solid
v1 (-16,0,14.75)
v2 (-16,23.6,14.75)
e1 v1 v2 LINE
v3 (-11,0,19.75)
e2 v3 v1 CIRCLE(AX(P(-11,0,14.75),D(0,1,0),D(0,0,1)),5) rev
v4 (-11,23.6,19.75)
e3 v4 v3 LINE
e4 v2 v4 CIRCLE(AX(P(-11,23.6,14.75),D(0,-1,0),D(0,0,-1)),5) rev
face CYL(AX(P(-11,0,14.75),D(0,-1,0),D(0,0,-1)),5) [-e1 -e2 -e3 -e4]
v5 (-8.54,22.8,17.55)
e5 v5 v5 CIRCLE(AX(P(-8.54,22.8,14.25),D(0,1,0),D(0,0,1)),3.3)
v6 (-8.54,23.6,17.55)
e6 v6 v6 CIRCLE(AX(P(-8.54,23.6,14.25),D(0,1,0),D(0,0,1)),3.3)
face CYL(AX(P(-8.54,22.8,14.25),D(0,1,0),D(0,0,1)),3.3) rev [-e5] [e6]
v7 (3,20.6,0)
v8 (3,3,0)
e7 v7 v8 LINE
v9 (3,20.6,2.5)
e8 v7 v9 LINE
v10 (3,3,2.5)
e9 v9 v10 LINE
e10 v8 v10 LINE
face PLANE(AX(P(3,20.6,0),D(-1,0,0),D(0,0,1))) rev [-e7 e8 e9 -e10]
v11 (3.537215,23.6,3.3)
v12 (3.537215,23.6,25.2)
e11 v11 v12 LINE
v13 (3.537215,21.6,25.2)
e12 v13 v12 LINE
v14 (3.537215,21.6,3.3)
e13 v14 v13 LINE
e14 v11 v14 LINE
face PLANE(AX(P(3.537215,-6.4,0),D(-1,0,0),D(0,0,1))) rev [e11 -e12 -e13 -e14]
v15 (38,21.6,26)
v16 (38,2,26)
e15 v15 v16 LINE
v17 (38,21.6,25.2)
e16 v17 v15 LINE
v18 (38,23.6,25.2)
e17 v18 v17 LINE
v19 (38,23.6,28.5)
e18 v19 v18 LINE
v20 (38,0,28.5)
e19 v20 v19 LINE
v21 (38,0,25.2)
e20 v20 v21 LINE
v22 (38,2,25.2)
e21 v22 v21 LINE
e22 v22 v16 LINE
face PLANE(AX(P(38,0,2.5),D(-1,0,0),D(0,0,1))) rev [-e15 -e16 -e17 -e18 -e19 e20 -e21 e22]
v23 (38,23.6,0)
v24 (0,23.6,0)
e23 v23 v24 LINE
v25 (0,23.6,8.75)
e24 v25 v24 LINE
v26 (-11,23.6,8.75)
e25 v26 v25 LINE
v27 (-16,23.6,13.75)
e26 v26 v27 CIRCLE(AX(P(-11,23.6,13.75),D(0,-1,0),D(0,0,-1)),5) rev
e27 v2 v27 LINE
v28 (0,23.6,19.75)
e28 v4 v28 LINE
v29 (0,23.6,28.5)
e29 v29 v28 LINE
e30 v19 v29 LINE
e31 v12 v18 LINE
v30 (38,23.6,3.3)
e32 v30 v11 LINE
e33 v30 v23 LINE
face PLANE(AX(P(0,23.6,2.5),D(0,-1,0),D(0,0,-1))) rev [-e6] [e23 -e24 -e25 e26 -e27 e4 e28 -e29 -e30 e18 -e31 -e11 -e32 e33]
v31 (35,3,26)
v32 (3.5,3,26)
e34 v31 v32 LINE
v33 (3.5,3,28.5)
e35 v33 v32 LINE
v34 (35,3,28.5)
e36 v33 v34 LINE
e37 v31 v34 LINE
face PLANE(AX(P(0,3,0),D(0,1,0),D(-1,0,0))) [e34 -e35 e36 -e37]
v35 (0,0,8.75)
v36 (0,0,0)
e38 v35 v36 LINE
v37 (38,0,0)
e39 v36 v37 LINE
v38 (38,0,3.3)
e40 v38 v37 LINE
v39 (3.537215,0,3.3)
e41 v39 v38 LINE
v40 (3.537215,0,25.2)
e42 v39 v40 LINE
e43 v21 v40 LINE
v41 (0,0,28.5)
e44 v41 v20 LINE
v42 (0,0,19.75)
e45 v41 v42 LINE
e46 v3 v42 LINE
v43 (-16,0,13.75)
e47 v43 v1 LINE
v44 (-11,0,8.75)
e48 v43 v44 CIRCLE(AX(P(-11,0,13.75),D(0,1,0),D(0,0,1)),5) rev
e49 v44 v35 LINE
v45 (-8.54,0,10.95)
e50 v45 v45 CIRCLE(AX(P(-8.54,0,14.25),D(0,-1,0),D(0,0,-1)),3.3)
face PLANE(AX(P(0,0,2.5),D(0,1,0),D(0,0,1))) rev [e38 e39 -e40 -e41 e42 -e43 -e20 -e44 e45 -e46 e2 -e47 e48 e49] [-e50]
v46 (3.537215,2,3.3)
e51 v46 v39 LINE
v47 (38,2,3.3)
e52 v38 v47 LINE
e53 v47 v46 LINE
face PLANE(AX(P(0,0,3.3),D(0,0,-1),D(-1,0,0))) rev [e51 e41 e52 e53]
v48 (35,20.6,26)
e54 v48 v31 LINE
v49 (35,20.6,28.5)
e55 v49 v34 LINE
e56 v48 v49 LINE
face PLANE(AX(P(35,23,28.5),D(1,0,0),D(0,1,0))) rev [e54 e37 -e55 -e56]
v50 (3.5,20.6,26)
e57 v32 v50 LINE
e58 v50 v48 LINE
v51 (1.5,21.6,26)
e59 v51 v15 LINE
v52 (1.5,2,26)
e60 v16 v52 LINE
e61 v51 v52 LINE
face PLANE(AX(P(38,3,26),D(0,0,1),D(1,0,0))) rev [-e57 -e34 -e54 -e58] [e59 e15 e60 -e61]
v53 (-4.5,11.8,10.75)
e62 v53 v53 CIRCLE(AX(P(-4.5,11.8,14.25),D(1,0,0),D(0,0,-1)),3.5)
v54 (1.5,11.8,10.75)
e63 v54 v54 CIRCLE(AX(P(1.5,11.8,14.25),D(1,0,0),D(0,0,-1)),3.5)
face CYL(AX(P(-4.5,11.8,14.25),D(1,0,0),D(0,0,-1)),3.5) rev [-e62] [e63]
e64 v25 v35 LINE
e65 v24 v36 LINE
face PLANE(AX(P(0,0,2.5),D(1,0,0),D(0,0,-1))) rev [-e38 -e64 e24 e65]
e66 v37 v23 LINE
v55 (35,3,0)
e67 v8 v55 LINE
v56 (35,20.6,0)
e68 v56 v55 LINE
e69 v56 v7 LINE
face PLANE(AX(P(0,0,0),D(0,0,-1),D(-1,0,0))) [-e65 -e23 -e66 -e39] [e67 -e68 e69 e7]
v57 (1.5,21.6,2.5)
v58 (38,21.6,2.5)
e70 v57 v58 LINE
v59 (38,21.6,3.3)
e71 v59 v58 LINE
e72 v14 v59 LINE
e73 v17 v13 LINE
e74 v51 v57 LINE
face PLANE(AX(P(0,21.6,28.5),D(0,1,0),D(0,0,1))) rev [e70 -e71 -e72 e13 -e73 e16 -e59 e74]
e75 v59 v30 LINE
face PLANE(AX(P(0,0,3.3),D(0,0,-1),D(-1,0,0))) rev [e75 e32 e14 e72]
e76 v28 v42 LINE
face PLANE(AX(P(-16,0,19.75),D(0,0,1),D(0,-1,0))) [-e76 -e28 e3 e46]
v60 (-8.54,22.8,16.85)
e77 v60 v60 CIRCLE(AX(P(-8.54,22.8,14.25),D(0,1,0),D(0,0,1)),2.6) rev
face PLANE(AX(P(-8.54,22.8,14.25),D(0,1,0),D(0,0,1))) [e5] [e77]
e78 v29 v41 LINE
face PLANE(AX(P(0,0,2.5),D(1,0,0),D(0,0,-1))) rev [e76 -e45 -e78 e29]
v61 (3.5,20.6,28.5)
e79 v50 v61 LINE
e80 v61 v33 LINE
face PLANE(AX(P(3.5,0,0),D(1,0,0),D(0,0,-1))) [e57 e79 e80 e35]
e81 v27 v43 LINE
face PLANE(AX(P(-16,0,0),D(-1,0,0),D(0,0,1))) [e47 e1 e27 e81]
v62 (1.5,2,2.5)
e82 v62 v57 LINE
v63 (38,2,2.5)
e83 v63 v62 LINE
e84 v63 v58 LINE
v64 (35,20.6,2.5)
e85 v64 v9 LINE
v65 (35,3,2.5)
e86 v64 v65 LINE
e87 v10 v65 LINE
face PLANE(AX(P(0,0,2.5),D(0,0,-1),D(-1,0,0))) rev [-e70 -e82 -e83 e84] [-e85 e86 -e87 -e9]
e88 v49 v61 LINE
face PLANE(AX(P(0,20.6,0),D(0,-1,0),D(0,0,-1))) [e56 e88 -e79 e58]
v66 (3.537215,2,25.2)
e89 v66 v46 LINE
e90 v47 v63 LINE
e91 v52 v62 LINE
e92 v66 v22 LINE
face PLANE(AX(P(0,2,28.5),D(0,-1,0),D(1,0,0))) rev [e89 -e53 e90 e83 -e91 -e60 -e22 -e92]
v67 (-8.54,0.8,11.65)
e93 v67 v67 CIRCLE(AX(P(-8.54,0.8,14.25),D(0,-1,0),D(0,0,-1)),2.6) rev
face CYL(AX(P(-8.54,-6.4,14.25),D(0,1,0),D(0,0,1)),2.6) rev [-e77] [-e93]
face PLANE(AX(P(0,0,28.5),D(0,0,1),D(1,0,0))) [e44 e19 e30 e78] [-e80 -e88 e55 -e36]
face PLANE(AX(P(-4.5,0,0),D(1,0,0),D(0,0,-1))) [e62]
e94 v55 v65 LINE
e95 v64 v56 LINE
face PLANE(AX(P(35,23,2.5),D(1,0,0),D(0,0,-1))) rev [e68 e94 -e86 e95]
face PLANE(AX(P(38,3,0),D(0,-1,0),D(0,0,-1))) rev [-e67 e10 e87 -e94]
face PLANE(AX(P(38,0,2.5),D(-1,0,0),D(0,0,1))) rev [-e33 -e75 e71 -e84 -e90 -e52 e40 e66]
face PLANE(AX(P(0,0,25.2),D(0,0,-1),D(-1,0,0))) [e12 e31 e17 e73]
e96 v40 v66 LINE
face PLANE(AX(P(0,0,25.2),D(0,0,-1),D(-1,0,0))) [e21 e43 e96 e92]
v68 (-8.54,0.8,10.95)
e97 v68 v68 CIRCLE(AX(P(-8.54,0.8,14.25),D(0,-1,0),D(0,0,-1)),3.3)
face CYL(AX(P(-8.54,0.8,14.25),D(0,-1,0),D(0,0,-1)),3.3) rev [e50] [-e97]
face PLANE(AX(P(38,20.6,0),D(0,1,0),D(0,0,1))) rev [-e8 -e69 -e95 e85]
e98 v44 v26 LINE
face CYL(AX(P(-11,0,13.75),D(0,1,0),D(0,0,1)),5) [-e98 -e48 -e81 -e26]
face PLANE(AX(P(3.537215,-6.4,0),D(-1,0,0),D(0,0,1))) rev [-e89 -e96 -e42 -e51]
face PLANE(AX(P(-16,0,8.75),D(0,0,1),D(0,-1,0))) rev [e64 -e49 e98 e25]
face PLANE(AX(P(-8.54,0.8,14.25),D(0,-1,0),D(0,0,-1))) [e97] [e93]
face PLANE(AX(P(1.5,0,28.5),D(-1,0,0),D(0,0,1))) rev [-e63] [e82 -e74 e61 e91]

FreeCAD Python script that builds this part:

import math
import FreeCAD as App
import Part
import Sketcher

V = App.Vector


def edges_at(feature, points):
    """Names of the edges that pass closest to the given points."""
    edges = feature.Shape.Edges
    near = lambda p: min(range(len(edges)), key=lambda i: edges[i].distToShape(Part.Vertex(*p))[0])
    return sorted({f"Edge{near(p) + 1}" for p in points})

doc = App.newDocument("Part")
body = doc.addObject("PartDesign::Body", "Body")

# Sketch on XY plane
sketch1 = body.newObject("Sketcher::SketchObject", "Sketch")
sketch1.AttachmentSupport = (doc.getObject("XY_Plane"), [""])
sketch1.MapMode = "FlatFace"
sketch1.addGeometry([
    Part.LineSegment(V(0, 24, 0), V(0, 0, 0)),
    Part.LineSegment(V(0, 0, 0), V(38, 0, 0)),
    Part.LineSegment(V(38, 0, 0), V(38, 24, 0)),
    Part.LineSegment(V(38, 24, 0), V(0, 24, 0)),
], False)
sketch1.addConstraint([
    Sketcher.Constraint("Coincident", 0, 2, 1, 1),
    Sketcher.Constraint("Coincident", 1, 2, 2, 1),
    Sketcher.Constraint("Coincident", 2, 2, 3, 1),
    Sketcher.Constraint("Coincident", 3, 2, 0, 1),
    Sketcher.Constraint("Vertical", 0),
    Sketcher.Constraint("Horizontal", 1),
    Sketcher.Constraint("Vertical", 2),
    Sketcher.Constraint("Horizontal", 3),
    Sketcher.Constraint("Coincident", 0, 2, -1, 1),
    Sketcher.Constraint("DistanceX", 1, 1, 1, 2, 38.0),
    Sketcher.Constraint("DistanceY", 0, 2, 0, 1, 23.6),
])
pad1 = body.newObject("PartDesign::Pad", "Pad")
pad1.Profile = sketch1
pad1.Length = 2.5

# Sketch on XY plane
sketch2 = body.newObject("Sketcher::SketchObject", "Sketch001")
sketch2.AttachmentSupport = (doc.getObject("XY_Plane"), [""])
sketch2.MapMode = "FlatFace"
sketch2.AttachmentOffset = App.Placement(V(0, 0, 2.5), App.Rotation())
sketch2.addGeometry([
    Part.LineSegment(V(3, 21, 0), V(3, 3, 0)),
    Part.LineSegment(V(3, 3, 0), V(38, 3, 0)),
    Part.LineSegment(V(38, 3, 0), V(38, 21, 0)),
    Part.LineSegment(V(38, 21, 0), V(3, 21, 0)),
], False)
sketch2.addConstraint([
    Sketcher.Constraint("Coincident", 0, 2, 1, 1),
    Sketcher.Constraint("Coincident", 1, 2, 2, 1),
    Sketcher.Constraint("Coincident", 2, 2, 3, 1),
    Sketcher.Constraint("Coincident", 3, 2, 0, 1),
    Sketcher.Constraint("Vertical", 0),
    Sketcher.Constraint("Horizontal", 1),
    Sketcher.Constraint("Vertical", 2),
    Sketcher.Constraint("Horizontal", 3),
    Sketcher.Constraint("DistanceX", 1, 1, 1, 2, 35.0),
    Sketcher.Constraint("DistanceY", 0, 2, 0, 1, 17.6),
    Sketcher.Constraint("DistanceX", -1, 1, 0, 2, 3.0),
    Sketcher.Constraint("DistanceY", -1, 1, 0, 2, 3.0),
])
pocket1 = body.newObject("PartDesign::Pocket", "Pocket")
pocket1.Profile = sketch2
pocket1.Length = 2.5

# Sketch on XY plane
sketch3 = body.newObject("Sketcher::SketchObject", "Sketch002")
sketch3.AttachmentSupport = (doc.getObject("XY_Plane"), [""])
sketch3.MapMode = "FlatFace"
sketch3.AttachmentOffset = App.Placement(V(0, 0, 2.5), App.Rotation())
sketch3.addGeometry([
    Part.LineSegment(V(38, 21.6, 0), V(38, 23.6, 0)),  # 0
    Part.LineSegment(V(38, 23.6, 0), V(0, 23.6, 0)),  # 1
    Part.LineSegment(V(0, 23.6, 0), V(0, 0, 0)),  # 2
    Part.LineSegment(V(0, 0, 0), V(38, 0, 0)),  # 3
    Part.LineSegment(V(38, 0, 0), V(38, 2, 0)),  # 4
    Part.LineSegment(V(38, 2, 0), V(1.5, 2, 0)),  # 5
    Part.LineSegment(V(1.5, 2, 0), V(1.5, 21.6, 0)),  # 6
    Part.LineSegment(V(1.5, 21.6, 0), V(38, 21.6, 0)),  # 7
], False)
sketch3.addConstraint([
    Sketcher.Constraint("Coincident", 0, 2, 1, 1),
    Sketcher.Constraint("Coincident", 1, 2, 2, 1),
    Sketcher.Constraint("Coincident", 2, 2, 3, 1),
    Sketcher.Constraint("Coincident", 3, 2, 4, 1),
    Sketcher.Constraint("Coincident", 4, 2, 5, 1),
    Sketcher.Constraint("Coincident", 5, 2, 6, 1),
    Sketcher.Constraint("Coincident", 6, 2, 7, 1),
    Sketcher.Constraint("Coincident", 7, 2, 0, 1),
    Sketcher.Constraint("Vertical", 0),
    Sketcher.Constraint("Horizontal", 1),
    Sketcher.Constraint("Vertical", 2),
    Sketcher.Constraint("Horizontal", 3),
    Sketcher.Constraint("Vertical", 4),
    Sketcher.Constraint("Horizontal", 5),
    Sketcher.Constraint("Vertical", 6),
    Sketcher.Constraint("Horizontal", 7),
    Sketcher.Constraint("Coincident", 2, 2, -1, 1),
    Sketcher.Constraint("Vertical", 0, 2, 3, 2),
    Sketcher.Constraint("Equal", 0, 4),
    Sketcher.Constraint("DistanceX", 1, 2, 1, 1, 38.0),
    Sketcher.Constraint("DistanceY", 0, 1, 0, 2, 2.0),
    Sketcher.Constraint("DistanceX", 5, 2, 5, 1, 36.5),
    Sketcher.Constraint("DistanceY", 2, 2, 2, 1, 23.6),
])
pad2 = body.newObject("PartDesign::Pad", "Pad001")
pad2.Profile = sketch3
pad2.Length = 26

# Sketch on XZ plane
sketch4 = body.newObject("Sketcher::SketchObject", "Sketch003")
sketch4.AttachmentSupport = (doc.getObject("XZ_Plane"), [""])
sketch4.MapMode = "FlatFace"
sketch4.AttachmentOffset = App.Placement(V(0, 0, -2), App.Rotation())
sketch4.addGeometry([
    Part.LineSegment(V(1.5, 26, 0), V(1.5, 28.5, 0)),
    Part.LineSegment(V(1.5, 28.5, 0), V(38, 28.5, 0)),
    Part.LineSegment(V(38, 28.5, 0), V(38, 26, 0)),
    Part.LineSegment(V(38, 26, 0), V(1.5, 26, 0)),
], False)
sketch4.addConstraint([
    Sketcher.Constraint("Coincident", 0, 2, 1, 1),
    Sketcher.Constraint("Coincident", 1, 2, 2, 1),
    Sketcher.Constraint("Coincident", 2, 2, 3, 1),
    Sketcher.Constraint("Coincident", 3, 2, 0, 1),
    Sketcher.Constraint("Vertical", 0),
    Sketcher.Constraint("Horizontal", 1),
    Sketcher.Constraint("Vertical", 2),
    Sketcher.Constraint("Horizontal", 3),
    Sketcher.Constraint("DistanceX", 1, 1, 1, 2, 36.5),
    Sketcher.Constraint("DistanceY", 0, 1, 0, 2, 2.5),
    Sketcher.Constraint("DistanceX", -1, 1, 1, 2, 38.0),
    Sketcher.Constraint("DistanceY", -1, 1, 2, 2, 26.0),
])
pad3 = body.newObject("PartDesign::Pad", "Pad002")
pad3.Profile = sketch4
pad3.Length = 1
pad3.Reversed = True

# Sketch on XZ plane
sketch5 = body.newObject("Sketcher::SketchObject", "Sketch004")
sketch5.AttachmentSupport = (doc.getObject("XZ_Plane"), [""])
sketch5.MapMode = "FlatFace"
sketch5.AttachmentOffset = App.Placement(V(0, 0, -21.6), App.Rotation())
sketch5.addGeometry([
    Part.LineSegment(V(38, 26, 0), V(38, 28.5, 0)),
    Part.LineSegment(V(38, 28.5, 0), V(1.5, 28.5, 0)),
    Part.LineSegment(V(1.5, 28.5, 0), V(1.5, 26, 0)),
    Part.LineSegment(V(1.5, 26, 0), V(38, 26, 0)),
], False)
sketch5.addConstraint([
    Sketcher.Constraint("Coincident", 0, 2, 1, 1),
    Sketcher.Constraint("Coincident", 1, 2, 2, 1),
    Sketcher.Constraint("Coincident", 2, 2, 3, 1),
    Sketcher.Constraint("Coincident", 3, 2, 0, 1),
    Sketcher.Constraint("Vertical", 0),
    Sketcher.Constraint("Horizontal", 1),
    Sketcher.Constraint("Vertical", 2),
    Sketcher.Constraint("Horizontal", 3),
    Sketcher.Constraint("DistanceX", 1, 2, 1, 1, 36.5),
    Sketcher.Constraint("DistanceY", 0, 1, 0, 2, 2.5),
    Sketcher.Constraint("DistanceX", -1, 1, 0, 2, 38.0),
    Sketcher.Constraint("DistanceY", -1, 1, 2, 2, 26.0),
])
pad4 = body.newObject("PartDesign::Pad", "Pad003")
pad4.Profile = sketch5
pad4.Length = 1

# Sketch on YZ plane
sketch6 = body.newObject("Sketcher::SketchObject", "Sketch005")
sketch6.AttachmentSupport = (doc.getObject("YZ_Plane"), [""])
sketch6.MapMode = "FlatFace"
sketch6.AttachmentOffset = App.Placement(V(0, 0, 1.5), App.Rotation())
sketch6.addGeometry([
    Part.LineSegment(V(20.6, 28.5, 0), V(3, 28.5, 0)),
    Part.LineSegment(V(3, 28.5, 0), V(3, 26, 0)),
    Part.LineSegment(V(3, 26, 0), V(20.6, 26, 0)),
    Part.LineSegment(V(20.6, 26, 0), V(20.6, 28.5, 0)),
], False)
sketch6.addConstraint([
    Sketcher.Constraint("Coincident", 0, 2, 1, 1),
    Sketcher.Constraint("Coincident", 1, 2, 2, 1),
    Sketcher.Constraint("Coincident", 2, 2, 3, 1),
    Sketcher.Constraint("Coincident", 3, 2, 0, 1),
    Sketcher.Constraint("Horizontal", 0),
    Sketcher.Constraint("Vertical", 1),
    Sketcher.Constraint("Horizontal", 2),
    Sketcher.Constraint("Vertical", 3),
    Sketcher.Constraint("DistanceX", 0, 2, 0, 1, 17.6),
    Sketcher.Constraint("DistanceY", 1, 2, 1, 1, 2.5),
    Sketcher.Constraint("DistanceX", -1, 1, 0, 2, 3.0),
    Sketcher.Constraint("DistanceY", -1, 1, 1, 2, 26.0),
])
pad5 = body.newObject("PartDesign::Pad", "Pad004")
pad5.Profile = sketch6
pad5.Length = 2

# Sketch on XZ plane
sketch7 = body.newObject("Sketcher::SketchObject", "Sketch006")
sketch7.AttachmentSupport = (doc.getObject("XZ_Plane"), [""])
sketch7.MapMode = "FlatFace"
sketch7.AttachmentOffset = App.Placement(V(0, 0, -23.6), App.Rotation())
sketch7.addGeometry([
    Part.LineSegment(V(4, 2, 0), V(4, 26, 0)),
    Part.LineSegment(V(4, 26, 0), V(38, 26, 0)),
    Part.LineSegment(V(38, 26, 0), V(38, 2, 0)),
    Part.LineSegment(V(38, 2, 0), V(4, 2, 0)),
], False)
sketch7.addConstraint([
    Sketcher.Constraint("Coincident", 0, 2, 1, 1),
    Sketcher.Constraint("Coincident", 1, 2, 2, 1),
    Sketcher.Constraint("Coincident", 2, 2, 3, 1),
    Sketcher.Constraint("Coincident", 3, 2, 0, 1),
    Sketcher.Constraint("Vertical", 0),
    Sketcher.Constraint("Horizontal", 1),
    Sketcher.Constraint("Vertical", 2),
    Sketcher.Constraint("Horizontal", 3),
    Sketcher.Constraint("DistanceY", 0, 1, 0, 2, 23.5),
    Sketcher.Constraint("DistanceY", -1, 1, 0, 2, 26.0),
    Sketcher.Constraint("DistanceX", -1, 1, 1, 2, 38.0),
    Sketcher.Constraint("DistanceX", 1, 1, 1, 2, 34.462785),
])
pocket2 = body.newObject("PartDesign::Pocket", "Pocket001")
pocket2.Profile = sketch7
pocket2.Length = 30
pocket2.Reversed = True

# Sketch on XZ plane
sketch8 = body.newObject("Sketcher::SketchObject", "Sketch007")
sketch8.AttachmentSupport = (doc.getObject("XZ_Plane"), [""])
sketch8.MapMode = "FlatFace"
sketch8.AttachmentOffset = App.Placement(V(0, 0, -3), App.Rotation())
sketch8.addGeometry([
    Part.LineSegment(V(35, 0, 0), V(35, 2.5, 0)),
    Part.LineSegment(V(35, 2.5, 0), V(38, 2.5, 0)),
    Part.LineSegment(V(38, 2.5, 0), V(38, 0, 0)),
    Part.LineSegment(V(38, 0, 0), V(35, 0, 0)),
], False)
sketch8.addConstraint([
    Sketcher.Constraint("Coincident", 0, 2, 1, 1),
    Sketcher.Constraint("Coincident", 1, 2, 2, 1),
    Sketcher.Constraint("Coincident", 2, 2, 3, 1),
    Sketcher.Constraint("Coincident", 3, 2, 0, 1),
    Sketcher.Constraint("Vertical", 0),
    Sketcher.Constraint("Horizontal", 1),
    Sketcher.Constraint("Vertical", 2),
    Sketcher.Constraint("Horizontal", 3),
    Sketcher.Constraint("PointOnObject", 2, 2, -1),
    Sketcher.Constraint("DistanceX", 1, 1, 1, 2, 3.0),
    Sketcher.Constraint("DistanceY", 0, 1, 0, 2, 2.5),
    Sketcher.Constraint("DistanceX", -1, 1, 0, 2, 35.0),
])
pad6 = body.newObject("PartDesign::Pad", "Pad005")
pad6.Profile = sketch8
pad6.Length = 20
pad6.Reversed = True

# Sketch on XZ plane
sketch9 = body.newObject("Sketcher::SketchObject", "Sketch008")
sketch9.AttachmentSupport = (doc.getObject("XZ_Plane"), [""])
sketch9.MapMode = "FlatFace"
sketch9.AttachmentOffset = App.Placement(V(0, 0, -3), App.Rotation())
sketch9.addGeometry([
    Part.LineSegment(V(35, 26, 0), V(35, 28.5, 0)),
    Part.LineSegment(V(35, 28.5, 0), V(38, 28.5, 0)),
    Part.LineSegment(V(38, 28.5, 0), V(38, 26, 0)),
    Part.LineSegment(V(38, 26, 0), V(35, 26, 0)),
], False)
sketch9.addConstraint([
    Sketcher.Constraint("Coincident", 0, 2, 1, 1),
    Sketcher.Constraint("Coincident", 1, 2, 2, 1),
    Sketcher.Constraint("Coincident", 2, 2, 3, 1),
    Sketcher.Constraint("Coincident", 3, 2, 0, 1),
    Sketcher.Constraint("Vertical", 0),
    Sketcher.Constraint("Horizontal", 1),
    Sketcher.Constraint("Vertical", 2),
    Sketcher.Constraint("Horizontal", 3),
    Sketcher.Constraint("DistanceX", 1, 1, 1, 2, 3.0),
    Sketcher.Constraint("DistanceY", 0, 1, 0, 2, 2.5),
    Sketcher.Constraint("DistanceX", -1, 1, 0, 2, 35.0),
    Sketcher.Constraint("DistanceY", -1, 1, 2, 2, 26.0),
])
pad7 = body.newObject("PartDesign::Pad", "Pad006")
pad7.Profile = sketch9
pad7.Length = 20
pad7.Reversed = True

# Sketch on YZ plane
sketch10 = body.newObject("Sketcher::SketchObject", "Sketch009")
sketch10.AttachmentSupport = (doc.getObject("YZ_Plane"), [""])
sketch10.MapMode = "FlatFace"
sketch10.addGeometry([
    Part.LineSegment(V(0, 20, 0), V(24, 20, 0)),
    Part.LineSegment(V(24, 20, 0), V(24, 9, 0)),
    Part.LineSegment(V(24, 9, 0), V(0, 9, 0)),
    Part.LineSegment(V(0, 9, 0), V(0, 20, 0)),
], False)
sketch10.addConstraint([
    Sketcher.Constraint("Coincident", 0, 2, 1, 1),
    Sketcher.Constraint("Coincident", 1, 2, 2, 1),
    Sketcher.Constraint("Coincident", 2, 2, 3, 1),
    Sketcher.Constraint("Coincident", 3, 2, 0, 1),
    Sketcher.Constraint("Horizontal", 0),
    Sketcher.Constraint("Vertical", 1),
    Sketcher.Constraint("Horizontal", 2),
    Sketcher.Constraint("Vertical", 3),
    Sketcher.Constraint("PointOnObject", 2, 2, -2),
    Sketcher.Constraint("DistanceY", 1, 2, 1, 1, 11.0),
    Sketcher.Constraint("DistanceX", 0, 1, 0, 2, 23.6),
    Sketcher.Constraint("DistanceY", -1, 1, 0, 2, 19.75),
])
pad8 = body.newObject("PartDesign::Pad", "Pad007")
pad8.Profile = sketch10
pad8.Length = 16
pad8.Reversed = True

# Sketch on XZ plane
sketch11 = body.newObject("Sketcher::SketchObject", "Sketch010")
sketch11.AttachmentSupport = (doc.getObject("XZ_Plane"), [""])
sketch11.MapMode = "FlatFace"
sketch11.AttachmentOffset = App.Placement(V(0, 0, -23.6), App.Rotation())
sketch11.addGeometry(Part.Circle(V(-8.5, 14.2, 0), V(0, 0, 1), 2.6), False)
sketch11.addConstraint([
    Sketcher.Constraint("Diameter", 0, 5.2),
    Sketcher.Constraint("DistanceX", 0, 3, -1, 1, 8.54),
    Sketcher.Constraint("DistanceY", -1, 1, 0, 3, 14.25),
])
pocket3 = body.newObject("PartDesign::Pocket", "Pocket002")
pocket3.Profile = sketch11
pocket3.Length = 30
pocket3.Reversed = True

# Sketch on XZ plane
sketch12 = body.newObject("Sketcher::SketchObject", "Sketch011")
sketch12.AttachmentSupport = (doc.getObject("XZ_Plane"), [""])
sketch12.MapMode = "FlatFace"
sketch12.AttachmentOffset = App.Placement(V(0, 0, -23.6), App.Rotation())
sketch12.addGeometry(Part.Circle(V(-8.5, 14.2, 0), V(0, 0, 1), 3.3), False)
sketch12.addConstraint([
    Sketcher.Constraint("Diameter", 0, 6.6),
    Sketcher.Constraint("DistanceX", 0, 3, -1, 1, 8.54),
    Sketcher.Constraint("DistanceY", -1, 1, 0, 3, 14.25),
])
pocket4 = body.newObject("PartDesign::Pocket", "Pocket003")
pocket4.Profile = sketch12
pocket4.Length = 0.8
pocket4.Reversed = True

# Sketch on XZ plane
sketch13 = body.newObject("Sketcher::SketchObject", "Sketch012")
sketch13.AttachmentSupport = (doc.getObject("XZ_Plane"), [""])
sketch13.MapMode = "FlatFace"
sketch13.addGeometry(Part.Circle(V(-8.5, 14.2, 0), V(0, 0, 1), 3.3), False)
sketch13.addConstraint([
    Sketcher.Constraint("Diameter", 0, 6.6),
    Sketcher.Constraint("DistanceX", 0, 3, -1, 1, 8.54),
    Sketcher.Constraint("DistanceY", -1, 1, 0, 3, 14.25),
])
pocket5 = body.newObject("PartDesign::Pocket", "Pocket004")
pocket5.Profile = sketch13
pocket5.Length = 0.8
doc.recompute()

fillet = body.newObject("PartDesign::Fillet", "Fillet")
fillet.Base = (pocket5, edges_at(pocket5, [(-16, 11.8, 8.75)]))
fillet.Radius = 5
doc.recompute()

fillet2 = body.newObject("PartDesign::Fillet", "Fillet001")
fillet2.Base = (fillet, edges_at(fillet, [(-16, 11.8, 19.75)]))
fillet2.Radius = 5

# Sketch on XY plane
sketch14 = body.newObject("Sketcher::SketchObject", "Sketch013")
sketch14.AttachmentSupport = (doc.getObject("XY_Plane"), [""])
sketch14.MapMode = "FlatFace"
sketch14.AttachmentOffset = App.Placement(V(0, 0, 26), App.Rotation())
sketch14.addGeometry([
    Part.LineSegment(V(38, 23.6, 0), V(38, 21.6, 0)),
    Part.LineSegment(V(38, 21.6, 0), V(3.5, 21.6, 0)),
    Part.LineSegment(V(3.5, 21.6, 0), V(3.5, 23.6, 0)),
    Part.LineSegment(V(3.5, 23.6, 0), V(38, 23.6, 0)),
], False)
sketch14.addConstraint([
    Sketcher.Constraint("Coincident", 0, 2, 1, 1),
    Sketcher.Constraint("Coincident", 1, 2, 2, 1),
    Sketcher.Constraint("Coincident", 2, 2, 3, 1),
    Sketcher.Constraint("Coincident", 3, 2, 0, 1),
    Sketcher.Constraint("Vertical", 0),
    Sketcher.Constraint("Horizontal", 1),
    Sketcher.Constraint("Vertical", 2),
    Sketcher.Constraint("Horizontal", 3),
    Sketcher.Constraint("DistanceY", 0, 2, 0, 1, 2.0),
    Sketcher.Constraint("DistanceX", -1, 1, 0, 2, 38.0),
    Sketcher.Constraint("DistanceY", -1, 1, 0, 2, 21.6),
    Sketcher.Constraint("DistanceX", 1, 2, 1, 1, 34.462785),
])
pad9 = body.newObject("PartDesign::Pad", "Pad008")
pad9.Profile = sketch14
pad9.Length = 0.8
pad9.Reversed = True

# Sketch on XY plane
sketch15 = body.newObject("Sketcher::SketchObject", "Sketch014")
sketch15.AttachmentSupport = (doc.getObject("XY_Plane"), [""])
sketch15.MapMode = "FlatFace"
sketch15.AttachmentOffset = App.Placement(V(0, 0, 2.5), App.Rotation())
sketch15.addGeometry([
    Part.LineSegment(V(3.5, 23.6, 0), V(3.5, 21.6, 0)),
    Part.LineSegment(V(3.5, 21.6, 0), V(38, 21.6, 0)),
    Part.LineSegment(V(38, 21.6, 0), V(38, 23.6, 0)),
    Part.LineSegment(V(38, 23.6, 0), V(3.5, 23.6, 0)),
], False)
sketch15.addConstraint([
    Sketcher.Constraint("Coincident", 0, 2, 1, 1),
    Sketcher.Constraint("Coincident", 1, 2, 2, 1),
    Sketcher.Constraint("Coincident", 2, 2, 3, 1),
    Sketcher.Constraint("Coincident", 3, 2, 0, 1),
    Sketcher.Constraint("Vertical", 0),
    Sketcher.Constraint("Horizontal", 1),
    Sketcher.Constraint("Vertical", 2),
    Sketcher.Constraint("Horizontal", 3),
    Sketcher.Constraint("DistanceY", 0, 2, 0, 1, 2.0),
    Sketcher.Constraint("DistanceX", -1, 1, 1, 2, 38.0),
    Sketcher.Constraint("DistanceY", -1, 1, 0, 2, 21.6),
    Sketcher.Constraint("DistanceX", 1, 1, 1, 2, 34.462785),
])
pad10 = body.newObject("PartDesign::Pad", "Pad009")
pad10.Profile = sketch15
pad10.Length = 0.8

# Sketch on XY plane
sketch16 = body.newObject("Sketcher::SketchObject", "Sketch015")
sketch16.AttachmentSupport = (doc.getObject("XY_Plane"), [""])
sketch16.MapMode = "FlatFace"
sketch16.AttachmentOffset = App.Placement(V(0, 0, 26), App.Rotation())
sketch16.addGeometry([
    Part.LineSegment(V(38, 2, 0), V(38, 0, 0)),
    Part.LineSegment(V(38, 0, 0), V(3.5, 0, 0)),
    Part.LineSegment(V(3.5, 0, 0), V(3.5, 2, 0)),
    Part.LineSegment(V(3.5, 2, 0), V(38, 2, 0)),
], False)
sketch16.addConstraint([
    Sketcher.Constraint("Coincident", 0, 2, 1, 1),
    Sketcher.Constraint("Coincident", 1, 2, 2, 1),
    Sketcher.Constraint("Coincident", 2, 2, 3, 1),
    Sketcher.Constraint("Coincident", 3, 2, 0, 1),
    Sketcher.Constraint("Vertical", 0),
    Sketcher.Constraint("Horizontal", 1),
    Sketcher.Constraint("Vertical", 2),
    Sketcher.Constraint("Horizontal", 3),
    Sketcher.Constraint("PointOnObject", 0, 2, -1),
    Sketcher.Constraint("DistanceY", 0, 2, 0, 1, 2.0),
    Sketcher.Constraint("DistanceX", -1, 1, 0, 2, 38.0),
    Sketcher.Constraint("DistanceX", 1, 2, 1, 1, 34.462785),
])
pad11 = body.newObject("PartDesign::Pad", "Pad010")
pad11.Profile = sketch16
pad11.Length = 0.8
pad11.Reversed = True

# Sketch on XY plane
sketch17 = body.newObject("Sketcher::SketchObject", "Sketch016")
sketch17.AttachmentSupport = (doc.getObject("XY_Plane"), [""])
sketch17.MapMode = "FlatFace"
sketch17.AttachmentOffset = App.Placement(V(0, 0, 2.5), App.Rotation())
sketch17.addGeometry([
    Part.LineSegment(V(3.5, 2, 0), V(3.5, 0, 0)),
    Part.LineSegment(V(3.5, 0, 0), V(38, 0, 0)),
    Part.LineSegment(V(38, 0, 0), V(38, 2, 0)),
    Part.LineSegment(V(38, 2, 0), V(3.5, 2, 0)),
], False)
sketch17.addConstraint([
    Sketcher.Constraint("Coincident", 0, 2, 1, 1),
    Sketcher.Constraint("Coincident", 1, 2, 2, 1),
    Sketcher.Constraint("Coincident", 2, 2, 3, 1),
    Sketcher.Constraint("Coincident", 3, 2, 0, 1),
    Sketcher.Constraint("Vertical", 0),
    Sketcher.Constraint("Horizontal", 1),
    Sketcher.Constraint("Vertical", 2),
    Sketcher.Constraint("Horizontal", 3),
    Sketcher.Constraint("PointOnObject", 0, 2, -1),
    Sketcher.Constraint("DistanceY", 0, 2, 0, 1, 2.0),
    Sketcher.Constraint("DistanceX", -1, 1, 1, 2, 38.0),
    Sketcher.Constraint("DistanceX", 1, 1, 1, 2, 34.462785),
])
pad12 = body.newObject("PartDesign::Pad", "Pad011")
pad12.Profile = sketch17
pad12.Length = 0.8

# Sketch on YZ plane
sketch18 = body.newObject("Sketcher::SketchObject", "Sketch017")
sketch18.AttachmentSupport = (doc.getObject("YZ_Plane"), [""])
sketch18.MapMode = "FlatFace"
sketch18.AttachmentOffset = App.Placement(V(0, 0, 1.5), App.Rotation())
sketch18.addGeometry([
    Part.ArcOfCircle(Part.Circle(V(11.8, 14.3, 0), V(0, 0, 1), 3.5), math.radians(-180), math.radians(-90)),
    Part.ArcOfCircle(Part.Circle(V(11.8, 14.3, 0), V(0, 0, 1), 3.5), math.radians(-90), math.radians(0)),
    Part.ArcOfCircle(Part.Circle(V(11.8, 14.2, 0), V(0, 0, 1), 3.5), math.radians(0), math.radians(90)),
    Part.ArcOfCircle(Part.Circle(V(11.8, 14.2, 0), V(0, 0, 1), 3.5), math.radians(90), math.radians(180)),
], False)
sketch18.addConstraint([
    Sketcher.Constraint("Tangent", 0, 2, 1, 1),
    Sketcher.Constraint("Tangent", 1, 2, 2, 1),
    Sketcher.Constraint("Tangent", 2, 2, 3, 1),
    Sketcher.Constraint("Tangent", 3, 2, 0, 1),
    Sketcher.Constraint("Equal", 0, 1),
    Sketcher.Constraint("Horizontal", 3, 3, 1, 2),
    Sketcher.Constraint("Horizontal", 1, 2, 3, 2),
    Sketcher.Constraint("Vertical", 3, 3, 0, 2),
    Sketcher.Constraint("Vertical", 0, 2, 2, 2),
    Sketcher.Constraint("Radius", 0, 3.5),
    Sketcher.Constraint("DistanceX", -1, 1, 0, 3, 11.8),
    Sketcher.Constraint("DistanceY", -1, 1, 0, 3, 14.25),
])
pocket6 = body.newObject("PartDesign::Pocket", "Pocket005")
pocket6.Profile = sketch18
pocket6.Length = 6

doc.recompute()
